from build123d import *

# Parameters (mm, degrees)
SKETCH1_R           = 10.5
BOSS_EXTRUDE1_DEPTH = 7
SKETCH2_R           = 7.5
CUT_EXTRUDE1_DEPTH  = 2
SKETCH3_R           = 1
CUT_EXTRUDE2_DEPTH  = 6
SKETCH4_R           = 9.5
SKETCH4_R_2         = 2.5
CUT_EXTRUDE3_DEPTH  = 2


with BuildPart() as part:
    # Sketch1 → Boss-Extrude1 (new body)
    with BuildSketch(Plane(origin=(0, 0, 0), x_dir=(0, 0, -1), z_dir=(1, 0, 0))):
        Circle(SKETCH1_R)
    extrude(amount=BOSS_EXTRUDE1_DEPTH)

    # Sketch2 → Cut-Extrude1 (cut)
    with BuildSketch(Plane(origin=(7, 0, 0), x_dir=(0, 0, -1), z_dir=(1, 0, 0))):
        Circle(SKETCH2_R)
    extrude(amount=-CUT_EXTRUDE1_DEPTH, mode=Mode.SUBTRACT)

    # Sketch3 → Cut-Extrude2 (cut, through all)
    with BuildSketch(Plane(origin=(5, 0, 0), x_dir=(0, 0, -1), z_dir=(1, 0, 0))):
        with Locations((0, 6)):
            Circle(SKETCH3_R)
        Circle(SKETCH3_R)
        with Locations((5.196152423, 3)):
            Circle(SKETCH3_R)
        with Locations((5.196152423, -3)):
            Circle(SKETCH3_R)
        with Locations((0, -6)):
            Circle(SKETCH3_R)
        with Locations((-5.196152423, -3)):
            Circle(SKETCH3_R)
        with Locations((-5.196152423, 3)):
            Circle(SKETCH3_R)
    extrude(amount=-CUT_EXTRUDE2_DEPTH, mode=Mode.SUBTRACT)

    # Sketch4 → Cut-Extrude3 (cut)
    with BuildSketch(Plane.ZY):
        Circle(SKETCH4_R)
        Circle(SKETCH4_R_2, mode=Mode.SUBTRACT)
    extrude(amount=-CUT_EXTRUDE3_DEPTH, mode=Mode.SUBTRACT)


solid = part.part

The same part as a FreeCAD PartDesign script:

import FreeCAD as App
import Part
import Sketcher

V = App.Vector
Q = App.Units.Quantity

doc = App.newDocument("Part")
params = doc.addObject("Spreadsheet::Sheet", "Params")
for row, (alias, value) in enumerate([
    ("sketch1_diameter", "21 mm"),
    ("pad1_length", "7 mm"),
    ("sketch2_diameter", "15 mm"),
    ("pocket1_length", "2 mm"),
    ("sketch3_diameter", "2 mm"),
    ("sketch4_diameter", "19 mm"),
    ("sketch4_diameter2", "5 mm"),
    ("pocket3_length", "2 mm"),
], start=1):
    params.set(f"A{row}", alias)
    params.set(f"B{row}", "=" + value)
    params.setAlias(f"B{row}", alias)

body = doc.addObject("PartDesign::Body", "Body")

# Sketch on YZ plane
sketch1 = doc.addObject("Sketcher::SketchObject", "Sketch")
body.addObject(sketch1)
sketch1.AttachmentSupport = (doc.YZ_Plane, [""])
sketch1.MapMode = "FlatFace"
sketch1.addGeometry(Part.Circle(V(0, 0, 0), V(0, 0, 1), 10), False)
sketch1.addConstraint(Sketcher.Constraint("Coincident", 0, 3, -1, 1))
sketch1.addConstraint(Sketcher.Constraint("Diameter", 0, Q("21 mm")))
sketch1.setExpression("Constraints[1]", "Params.sketch1_diameter")
pad1 = doc.addObject("PartDesign::Pad", "Pad")
body.addObject(pad1)
pad1.Profile = sketch1
pad1.setExpression("Length", "Params.pad1_length")

# Sketch on YZ plane
sketch2 = doc.addObject("Sketcher::SketchObject", "Sketch001")
body.addObject(sketch2)
sketch2.AttachmentSupport = (doc.YZ_Plane, [""])
sketch2.MapMode = "FlatFace"
sketch2.AttachmentOffset = App.Placement(V(0, 0, 7), App.Rotation())
sketch2.addGeometry(Part.Circle(V(0, 0, 0), V(0, 0, 1), 8), False)
sketch2.addConstraint(Sketcher.Constraint("Coincident", 0, 3, -1, 1))
sketch2.addConstraint(Sketcher.Constraint("Diameter", 0, Q("15 mm")))
sketch2.setExpression("Constraints[1]", "Params.sketch2_diameter")
pocket1 = doc.addObject("PartDesign::Pocket", "Pocket")
body.addObject(pocket1)
pocket1.Profile = sketch2
pocket1.setExpression("Length", "Params.pocket1_length")

# Sketch on YZ plane
sketch3 = doc.addObject("Sketcher::SketchObject", "Sketch002")
body.addObject(sketch3)
sketch3.AttachmentSupport = (doc.YZ_Plane, [""])
sketch3.MapMode = "FlatFace"
sketch3.AttachmentOffset = App.Placement(V(0, 0, 5), App.Rotation())
sketch3.addGeometry(Part.Circle(V(6, 0, 0), V(0, 0, 1), 1), False)
sketch3.addGeometry(Part.Circle(V(0, 0, 0), V(0, 0, 1), 1), False)
sketch3.addGeometry(Part.Circle(V(3, -5.2, 0), V(0, 0, 1), 1), False)
sketch3.addGeometry(Part.Circle(V(-3, -5.2, 0), V(0, 0, 1), 1), False)
sketch3.addGeometry(Part.Circle(V(-6, 0, 0), V(0, 0, 1), 1), False)
sketch3.addGeometry(Part.Circle(V(-3, 5.2, 0), V(0, 0, 1), 1), False)
sketch3.addGeometry(Part.Circle(V(3, 5.2, 0), V(0, 0, 1), 1), False)
sketch3.addConstraint(Sketcher.Constraint("Coincident", 1, 3, -1, 1))
sketch3.addConstraint(Sketcher.Constraint("Equal", 0, 1))
sketch3.addConstraint(Sketcher.Constraint("Equal", 1, 2))
sketch3.addConstraint(Sketcher.Constraint("Equal", 2, 3))
sketch3.addConstraint(Sketcher.Constraint("Equal", 3, 4))
sketch3.addConstraint(Sketcher.Constraint("Equal", 4, 5))
sketch3.addConstraint(Sketcher.Constraint("Equal", 5, 6))
sketch3.addConstraint(Sketcher.Constraint("Symmetric", 0, 3, 4, 3, -1, 1))
sketch3.addConstraint(Sketcher.Constraint("Symmetric", 2, 3, 5, 3, -1, 1))
sketch3.addConstraint(Sketcher.Constraint("Symmetric", 3, 3, 6, 3, -1, 1))
sketch3.addConstraint(Sketcher.Constraint("Symmetric", 2, 3, 3, 3, -2))
sketch3.addConstraint(Sketcher.Constraint("PointOnObject", 0, 3, -1))
sketch3.addConstraint(Sketcher.Constraint("Diameter", 0, Q("2 mm")))
sketch3.addConstraint(Sketcher.Constraint("DistanceX", -1, 1, 0, 3, Q("6 mm")))
sketch3.addConstraint(Sketcher.Constraint("DistanceX", -1, 1, 2, 3, Q("3 mm")))
sketch3.addConstraint(Sketcher.Constraint("DistanceY", 2, 3, -1, 1, Q("5.196152 mm")))
sketch3.setExpression("Constraints[12]", "Params.sketch3_diameter")
pocket2 = doc.addObject("PartDesign::Pocket", "Pocket001")
body.addObject(pocket2)
pocket2.Profile = sketch3
pocket2.Type = "ThroughAll"

# Sketch on YZ plane
sketch4 = doc.addObject("Sketcher::SketchObject", "Sketch003")
body.addObject(sketch4)
sketch4.AttachmentSupport = (doc.YZ_Plane, [""])
sketch4.MapMode = "FlatFace"
sketch4.addGeometry(Part.Circle(V(0, 0, 0), V(0, 0, 1), 9.5), False)
sketch4.addGeometry(Part.Circle(V(0, 0, 0), V(0, 0, 1), 2.5), False)
sketch4.addConstraint(Sketcher.Constraint("Coincident", 0, 3, -1, 1))
sketch4.addConstraint(Sketcher.Constraint("Coincident", 1, 3, -1, 1))
sketch4.addConstraint(Sketcher.Constraint("Diameter", 0, Q("19 mm")))
sketch4.addConstraint(Sketcher.Constraint("Diameter", 1, Q("5 mm")))
sketch4.setExpression("Constraints[2]", "Params.sketch4_diameter")
sketch4.setExpression("Constraints[3]", "Params.sketch4_diameter2")
pocket3 = doc.addObject("PartDesign::Pocket", "Pocket002")
body.addObject(pocket3)
pocket3.Profile = sketch4
pocket3.setExpression("Length", "Params.pocket3_length")
pocket3.Reversed = True

doc.recompute()
